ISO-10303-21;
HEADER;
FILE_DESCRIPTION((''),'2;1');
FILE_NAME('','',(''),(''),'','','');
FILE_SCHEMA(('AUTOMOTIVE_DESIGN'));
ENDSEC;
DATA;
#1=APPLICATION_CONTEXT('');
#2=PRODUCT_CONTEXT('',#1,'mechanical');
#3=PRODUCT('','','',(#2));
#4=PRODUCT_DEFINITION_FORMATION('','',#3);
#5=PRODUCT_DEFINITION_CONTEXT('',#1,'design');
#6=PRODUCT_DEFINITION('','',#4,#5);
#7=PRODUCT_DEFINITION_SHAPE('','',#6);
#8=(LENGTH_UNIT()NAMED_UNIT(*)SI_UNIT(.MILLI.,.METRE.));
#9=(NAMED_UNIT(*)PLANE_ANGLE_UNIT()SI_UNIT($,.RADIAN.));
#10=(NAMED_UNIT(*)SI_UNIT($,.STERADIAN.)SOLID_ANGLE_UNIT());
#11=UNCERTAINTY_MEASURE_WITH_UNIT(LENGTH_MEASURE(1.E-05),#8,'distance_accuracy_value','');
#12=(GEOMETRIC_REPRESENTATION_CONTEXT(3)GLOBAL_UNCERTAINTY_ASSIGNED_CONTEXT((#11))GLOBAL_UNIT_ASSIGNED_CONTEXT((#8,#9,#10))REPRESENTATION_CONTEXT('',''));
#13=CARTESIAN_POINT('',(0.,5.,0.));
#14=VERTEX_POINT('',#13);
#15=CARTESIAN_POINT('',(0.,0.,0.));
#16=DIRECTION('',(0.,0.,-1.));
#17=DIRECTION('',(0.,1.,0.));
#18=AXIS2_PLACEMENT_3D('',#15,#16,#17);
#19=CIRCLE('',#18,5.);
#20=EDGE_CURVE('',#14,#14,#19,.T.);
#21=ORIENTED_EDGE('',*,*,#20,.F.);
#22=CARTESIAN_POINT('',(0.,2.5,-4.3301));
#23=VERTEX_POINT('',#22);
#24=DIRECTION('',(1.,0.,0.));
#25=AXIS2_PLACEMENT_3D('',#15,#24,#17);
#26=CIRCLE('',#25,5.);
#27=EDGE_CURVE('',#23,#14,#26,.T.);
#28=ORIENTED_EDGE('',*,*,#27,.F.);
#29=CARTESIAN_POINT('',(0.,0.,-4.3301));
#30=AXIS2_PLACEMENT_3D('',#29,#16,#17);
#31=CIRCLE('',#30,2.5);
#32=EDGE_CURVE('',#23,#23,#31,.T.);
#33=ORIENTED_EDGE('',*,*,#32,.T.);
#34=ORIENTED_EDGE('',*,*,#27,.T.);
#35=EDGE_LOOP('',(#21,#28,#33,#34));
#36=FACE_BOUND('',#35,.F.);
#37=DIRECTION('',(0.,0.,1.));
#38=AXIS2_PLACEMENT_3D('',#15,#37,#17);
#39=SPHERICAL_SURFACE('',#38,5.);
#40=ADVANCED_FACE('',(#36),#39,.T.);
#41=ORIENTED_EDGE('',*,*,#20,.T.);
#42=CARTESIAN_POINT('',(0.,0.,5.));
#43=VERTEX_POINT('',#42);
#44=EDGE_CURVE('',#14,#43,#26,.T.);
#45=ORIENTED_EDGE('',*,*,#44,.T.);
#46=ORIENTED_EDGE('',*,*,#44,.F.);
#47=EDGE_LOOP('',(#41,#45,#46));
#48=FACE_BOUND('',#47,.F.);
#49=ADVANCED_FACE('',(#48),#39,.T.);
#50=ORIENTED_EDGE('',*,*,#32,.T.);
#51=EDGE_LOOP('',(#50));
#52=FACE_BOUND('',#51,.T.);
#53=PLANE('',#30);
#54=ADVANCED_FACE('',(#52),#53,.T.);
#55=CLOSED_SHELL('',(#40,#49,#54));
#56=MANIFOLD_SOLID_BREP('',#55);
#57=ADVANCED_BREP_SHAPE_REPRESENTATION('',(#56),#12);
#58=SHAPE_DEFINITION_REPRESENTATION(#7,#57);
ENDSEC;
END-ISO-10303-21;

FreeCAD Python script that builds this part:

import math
import FreeCAD as App
import Part
import Sketcher
from FreeCAD import Vector
Q = App.Units.Quantity

doc = App.newDocument("Part")
body = doc.addObject("PartDesign::Body", "Body")

sketch1 = doc.addObject("Sketcher::SketchObject", "Sketch")
body.addObject(sketch1)
sketch1.AttachmentSupport = (doc.YZ_Plane, [""])
sketch1.MapMode = "FlatFace"
sketch1.addGeometry(Part.ArcOfCircle(Part.Circle(Vector(0, 0, 0), Vector(0, 0, 1), 5), math.radians(-60), math.radians(90)), False)
sketch1.addGeometry(Part.LineSegment(Vector(0, 5, 0), Vector(0, -4.3, 0)), False)
sketch1.addGeometry(Part.LineSegment(Vector(0, -4.3, 0), Vector(2.5, -4.3, 0)), False)
sketch1.addConstraint(Sketcher.Constraint("Coincident", 0, 2, 1, 1))
sketch1.addConstraint(Sketcher.Constraint("Coincident", 1, 2, 2, 1))
sketch1.addConstraint(Sketcher.Constraint("Coincident", 2, 2, 0, 1))
sketch1.addConstraint(Sketcher.Constraint("Vertical", 1))
sketch1.addConstraint(Sketcher.Constraint("Horizontal", 2))
sketch1.addConstraint(Sketcher.Constraint("Coincident", 0, 3, -1, 1))
sketch1.addConstraint(Sketcher.Constraint("PointOnObject", 0, 2, -2))
sketch1.addConstraint(Sketcher.Constraint("Radius", 0, Q("5 mm")))
sketch1.addConstraint(Sketcher.Constraint("DistanceX", 2, 1, 2, 2, Q("2.5 mm")))
revolution = doc.addObject("PartDesign::Revolution", "Revolution")
body.addObject(revolution)
revolution.Profile = sketch1
revolution.ReferenceAxis = (sketch1, ["V_Axis"])
revolution.Angle = 360

doc.recompute()
